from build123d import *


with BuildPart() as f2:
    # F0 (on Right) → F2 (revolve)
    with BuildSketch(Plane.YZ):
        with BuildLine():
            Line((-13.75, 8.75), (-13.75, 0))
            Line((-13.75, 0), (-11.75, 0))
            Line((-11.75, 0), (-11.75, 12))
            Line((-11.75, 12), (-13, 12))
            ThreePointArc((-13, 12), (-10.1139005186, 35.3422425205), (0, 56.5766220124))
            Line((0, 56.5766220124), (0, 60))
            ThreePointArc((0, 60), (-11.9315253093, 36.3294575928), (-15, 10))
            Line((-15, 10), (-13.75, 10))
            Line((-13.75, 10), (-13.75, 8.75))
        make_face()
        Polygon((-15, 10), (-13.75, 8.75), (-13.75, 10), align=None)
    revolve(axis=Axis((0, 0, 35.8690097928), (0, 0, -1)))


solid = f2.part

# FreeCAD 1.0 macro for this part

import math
import FreeCAD as App
import Part
import Sketcher
Q = App.Units.Quantity

doc = App.newDocument("Part")
body = doc.addObject("PartDesign::Body", "Body")

sketch1 = doc.addObject("Sketcher::SketchObject", "Sketch")
body.addObject(sketch1)
sketch1.AttachmentSupport = (doc.YZ_Plane, [""])
sketch1.MapMode = "FlatFace"
sketch1.addGeometry([
    Part.LineSegment(App.Vector(-13.8, 0, 0), App.Vector(-11.8, 0, 0)),
    Part.LineSegment(App.Vector(-11.8, 0, 0), App.Vector(-11.8, 12, 0)),
    Part.LineSegment(App.Vector(-11.8, 12, 0), App.Vector(-13, 12, 0)),
    Part.ArcOfCircle(Part.Circle(App.Vector(60.4, 14.8, 0), App.Vector(0, 0, 1), 73.5), math.radians(145), math.radians(182)),
    Part.LineSegment(App.Vector(0, 56.6, 0), App.Vector(0, 60, 0)),
    Part.ArcOfCircle(Part.Circle(App.Vector(60.8, 14.5, 0), App.Vector(0, 0, 1), 75.9), math.radians(143), math.radians(183)),
    Part.LineSegment(App.Vector(-15, 10, 0), App.Vector(-13.8, 8.8, 0)),
    Part.LineSegment(App.Vector(-13.8, 8.8, 0), App.Vector(-13.8, 0, 0)),
], False)
sketch1.addConstraint([
    Sketcher.Constraint("Coincident", 0, 2, 1, 1),
    Sketcher.Constraint("Coincident", 1, 2, 2, 1),
    Sketcher.Constraint("Coincident", 2, 2, 3, 2),
    Sketcher.Constraint("Coincident", 3, 1, 4, 1),
    Sketcher.Constraint("Coincident", 4, 2, 5, 1),
    Sketcher.Constraint("Coincident", 5, 2, 6, 1),
    Sketcher.Constraint("Coincident", 6, 2, 7, 1),
    Sketcher.Constraint("Coincident", 7, 2, 0, 1),
    Sketcher.Constraint("Horizontal", 0),
    Sketcher.Constraint("Vertical", 1),
    Sketcher.Constraint("Horizontal", 2),
    Sketcher.Constraint("Vertical", 4),
    Sketcher.Constraint("Vertical", 7),
    Sketcher.Constraint("PointOnObject", 0, 2, -1),
    Sketcher.Constraint("PointOnObject", 3, 1, -2),
    Sketcher.Constraint("DistanceX", 0, 1, 0, 2, Q("2 mm")),
    Sketcher.Constraint("DistanceY", 1, 1, 1, 2, Q("12 mm")),
    Sketcher.Constraint("Angle", 6, Q("-45 deg")),
    Sketcher.Constraint("DistanceX", 2, 2, -1, 1, Q("13 mm")),
    Sketcher.Constraint("DistanceY", -1, 1, 4, 2, Q("60 mm")),
    Sketcher.Constraint("DistanceX", 5, 2, -1, 1, Q("15 mm")),
    Sketcher.Constraint("DistanceY", -1, 1, 5, 2, Q("10 mm")),
    Sketcher.Constraint("DistanceX", 2, 2, 2, 1, Q("1.25 mm")),
    Sketcher.Constraint("Radius", 3, Q("73.475613 mm")),
    Sketcher.Constraint("Radius", 5, Q("75.935735 mm")),
    Sketcher.Constraint("DistanceY", 4, 1, 4, 2, Q("3.423378 mm")),
])
revolution = doc.addObject("PartDesign::Revolution", "Revolution")
body.addObject(revolution)
revolution.Profile = sketch1
revolution.ReferenceAxis = (sketch1, ["V_Axis"])
revolution.Angle = 360

doc.recompute()
